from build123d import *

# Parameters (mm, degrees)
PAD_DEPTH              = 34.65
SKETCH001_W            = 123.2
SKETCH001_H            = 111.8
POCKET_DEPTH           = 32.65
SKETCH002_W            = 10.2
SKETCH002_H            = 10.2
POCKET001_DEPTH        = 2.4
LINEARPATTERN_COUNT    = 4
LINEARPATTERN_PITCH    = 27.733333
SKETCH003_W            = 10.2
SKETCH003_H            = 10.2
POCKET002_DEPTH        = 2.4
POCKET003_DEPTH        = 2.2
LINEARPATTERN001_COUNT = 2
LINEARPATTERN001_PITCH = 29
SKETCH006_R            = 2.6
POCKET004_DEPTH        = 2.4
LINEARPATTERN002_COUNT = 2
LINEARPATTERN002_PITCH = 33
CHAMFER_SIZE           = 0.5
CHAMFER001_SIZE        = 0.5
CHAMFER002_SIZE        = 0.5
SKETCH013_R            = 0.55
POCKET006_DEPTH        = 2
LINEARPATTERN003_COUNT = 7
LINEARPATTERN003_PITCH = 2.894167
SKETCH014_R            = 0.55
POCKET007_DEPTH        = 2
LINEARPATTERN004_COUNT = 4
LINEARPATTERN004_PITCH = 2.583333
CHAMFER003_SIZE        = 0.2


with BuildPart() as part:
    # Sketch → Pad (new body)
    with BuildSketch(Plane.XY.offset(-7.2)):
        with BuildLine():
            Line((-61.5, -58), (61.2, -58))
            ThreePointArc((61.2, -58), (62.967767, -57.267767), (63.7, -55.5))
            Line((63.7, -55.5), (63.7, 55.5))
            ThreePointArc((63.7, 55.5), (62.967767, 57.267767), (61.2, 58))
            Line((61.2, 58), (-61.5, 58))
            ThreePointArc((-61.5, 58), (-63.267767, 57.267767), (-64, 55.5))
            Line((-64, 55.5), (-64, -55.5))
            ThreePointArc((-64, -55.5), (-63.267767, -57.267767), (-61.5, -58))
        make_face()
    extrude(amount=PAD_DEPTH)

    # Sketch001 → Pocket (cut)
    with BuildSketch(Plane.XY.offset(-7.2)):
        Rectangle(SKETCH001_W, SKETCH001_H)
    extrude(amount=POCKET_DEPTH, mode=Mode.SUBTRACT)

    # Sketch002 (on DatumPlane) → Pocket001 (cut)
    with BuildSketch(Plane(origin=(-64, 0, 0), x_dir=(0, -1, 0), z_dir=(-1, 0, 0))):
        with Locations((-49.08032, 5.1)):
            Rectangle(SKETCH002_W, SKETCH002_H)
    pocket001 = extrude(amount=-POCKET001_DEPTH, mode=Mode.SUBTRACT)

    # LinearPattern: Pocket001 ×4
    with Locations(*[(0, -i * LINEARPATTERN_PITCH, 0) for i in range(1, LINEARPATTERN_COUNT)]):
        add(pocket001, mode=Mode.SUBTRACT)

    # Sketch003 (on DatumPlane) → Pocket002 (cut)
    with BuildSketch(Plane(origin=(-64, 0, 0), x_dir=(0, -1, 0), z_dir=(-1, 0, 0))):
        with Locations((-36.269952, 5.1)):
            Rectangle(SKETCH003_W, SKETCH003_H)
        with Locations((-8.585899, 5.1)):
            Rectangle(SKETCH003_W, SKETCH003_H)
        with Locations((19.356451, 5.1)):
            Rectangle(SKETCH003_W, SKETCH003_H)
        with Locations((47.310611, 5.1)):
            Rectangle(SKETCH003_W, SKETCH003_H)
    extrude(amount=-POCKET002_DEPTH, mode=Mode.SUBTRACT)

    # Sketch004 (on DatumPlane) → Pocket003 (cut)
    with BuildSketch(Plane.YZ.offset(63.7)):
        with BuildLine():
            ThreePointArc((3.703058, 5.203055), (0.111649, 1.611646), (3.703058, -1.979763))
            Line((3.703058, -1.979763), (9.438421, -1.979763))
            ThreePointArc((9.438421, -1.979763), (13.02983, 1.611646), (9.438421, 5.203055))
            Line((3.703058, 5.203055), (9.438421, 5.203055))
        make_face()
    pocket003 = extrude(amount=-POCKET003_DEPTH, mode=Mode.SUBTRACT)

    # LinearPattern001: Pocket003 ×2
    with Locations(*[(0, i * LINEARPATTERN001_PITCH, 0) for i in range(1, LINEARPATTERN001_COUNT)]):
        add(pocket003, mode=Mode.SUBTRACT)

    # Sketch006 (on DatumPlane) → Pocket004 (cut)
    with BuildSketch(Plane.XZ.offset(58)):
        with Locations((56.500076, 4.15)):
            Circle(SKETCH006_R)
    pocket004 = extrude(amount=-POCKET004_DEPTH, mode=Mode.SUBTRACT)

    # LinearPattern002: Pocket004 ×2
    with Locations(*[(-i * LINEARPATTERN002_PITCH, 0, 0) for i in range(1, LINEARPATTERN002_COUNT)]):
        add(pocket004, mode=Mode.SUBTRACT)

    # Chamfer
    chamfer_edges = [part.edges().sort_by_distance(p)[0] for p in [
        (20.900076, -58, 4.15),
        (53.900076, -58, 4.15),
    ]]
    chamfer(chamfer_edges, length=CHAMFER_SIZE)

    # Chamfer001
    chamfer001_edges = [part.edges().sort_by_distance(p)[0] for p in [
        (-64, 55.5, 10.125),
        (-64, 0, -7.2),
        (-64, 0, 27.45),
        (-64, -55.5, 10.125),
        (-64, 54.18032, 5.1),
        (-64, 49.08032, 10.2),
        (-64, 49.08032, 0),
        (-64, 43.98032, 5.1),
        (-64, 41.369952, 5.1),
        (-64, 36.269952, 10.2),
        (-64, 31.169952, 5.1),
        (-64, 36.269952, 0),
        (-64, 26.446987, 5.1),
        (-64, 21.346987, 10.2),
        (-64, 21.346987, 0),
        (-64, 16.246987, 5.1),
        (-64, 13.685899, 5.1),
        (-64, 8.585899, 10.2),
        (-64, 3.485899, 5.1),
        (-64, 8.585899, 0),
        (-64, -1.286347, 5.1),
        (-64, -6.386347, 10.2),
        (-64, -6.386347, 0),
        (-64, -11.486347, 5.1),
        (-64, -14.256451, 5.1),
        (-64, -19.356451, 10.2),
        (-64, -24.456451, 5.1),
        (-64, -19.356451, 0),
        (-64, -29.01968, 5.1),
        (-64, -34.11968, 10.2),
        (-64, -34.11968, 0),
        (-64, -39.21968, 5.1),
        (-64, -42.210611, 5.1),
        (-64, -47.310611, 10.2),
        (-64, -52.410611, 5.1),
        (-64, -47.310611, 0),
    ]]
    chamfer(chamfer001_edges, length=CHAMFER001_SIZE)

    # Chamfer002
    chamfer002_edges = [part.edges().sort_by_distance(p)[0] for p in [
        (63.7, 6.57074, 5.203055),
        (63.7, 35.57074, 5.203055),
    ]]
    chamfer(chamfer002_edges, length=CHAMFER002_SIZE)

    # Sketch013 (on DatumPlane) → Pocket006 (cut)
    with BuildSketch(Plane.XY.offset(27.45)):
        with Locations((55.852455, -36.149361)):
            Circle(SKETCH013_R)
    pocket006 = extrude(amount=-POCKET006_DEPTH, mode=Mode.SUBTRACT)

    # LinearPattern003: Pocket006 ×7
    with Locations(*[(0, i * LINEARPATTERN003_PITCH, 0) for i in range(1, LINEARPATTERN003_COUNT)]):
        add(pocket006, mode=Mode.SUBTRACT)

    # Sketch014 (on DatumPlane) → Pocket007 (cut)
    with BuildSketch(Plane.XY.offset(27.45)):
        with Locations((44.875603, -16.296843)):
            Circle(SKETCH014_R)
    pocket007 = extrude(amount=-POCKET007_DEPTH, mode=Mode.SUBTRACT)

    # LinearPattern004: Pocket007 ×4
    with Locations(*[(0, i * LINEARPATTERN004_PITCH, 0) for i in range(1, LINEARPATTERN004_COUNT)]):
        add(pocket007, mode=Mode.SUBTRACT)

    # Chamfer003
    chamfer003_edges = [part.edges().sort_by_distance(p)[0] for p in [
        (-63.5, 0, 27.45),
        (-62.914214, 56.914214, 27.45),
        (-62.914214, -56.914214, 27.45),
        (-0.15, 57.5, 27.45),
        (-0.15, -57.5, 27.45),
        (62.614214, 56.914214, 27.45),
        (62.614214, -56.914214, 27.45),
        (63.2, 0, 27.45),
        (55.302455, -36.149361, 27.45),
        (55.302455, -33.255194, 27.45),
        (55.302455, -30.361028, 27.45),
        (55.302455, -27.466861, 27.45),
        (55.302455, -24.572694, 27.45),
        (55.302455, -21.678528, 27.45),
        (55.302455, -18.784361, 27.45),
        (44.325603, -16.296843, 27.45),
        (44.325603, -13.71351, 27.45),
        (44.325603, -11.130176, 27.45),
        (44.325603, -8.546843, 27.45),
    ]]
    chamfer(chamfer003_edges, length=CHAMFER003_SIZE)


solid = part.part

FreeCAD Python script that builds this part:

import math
import FreeCAD as App
import Part
import Sketcher


def edges_at(feature, points):
    """Names of the edges that pass closest to the given points."""
    edges = feature.Shape.Edges
    near = lambda p: min(range(len(edges)), key=lambda i: edges[i].distToShape(Part.Vertex(*p))[0])
    return sorted({f"Edge{near(p) + 1}" for p in points})


def add_polygon(sketch, points):
    """Adds a closed chain of lines whose ends are joined by coincident constraints."""
    first, n = sketch.GeometryCount, len(points)
    for a, b in zip(points, points[1:] + points[:1]):
        sketch.addGeometry(Part.LineSegment(App.Vector(*a, 0), App.Vector(*b, 0)), False)
    for i in range(n):
        sketch.addConstraint(Sketcher.Constraint("Coincident", first + i, 2, first + (i + 1) % n, 1))

doc = App.newDocument("Part")
params = doc.addObject("Spreadsheet::Sheet", "Params")
for row, (alias, value) in enumerate([
    ("sketch1_radius", "2.5 mm"),
    ("sketch1_height", "111 mm"),
    ("sketch1_width", "122.7 mm"),
    ("pad1_length", "34.65 mm"),
    ("sketch2_width", "123.2 mm"),
    ("sketch2_height", "111.8 mm"),
    ("pocket1_length", "32.65 mm"),
    ("sketch3_width", "10.2 mm"),
    ("pocket2_length", "2.4 mm"),
    ("linearpattern_pitch", "27.733333 mm"),
    ("sketch4_width", "10.2 mm"),
    ("pocket3_length", "2.4 mm"),
    ("pocket4_length", "2.2 mm"),
    ("linearpattern2_pitch", "29 mm"),
    ("sketch6_diameter", "5.2 mm"),
    ("pocket5_length", "2.4 mm"),
    ("linearpattern3_pitch", "33 mm"),
    ("chamfer_size", "0.5 mm"),
    ("chamfer2_size", "0.5 mm"),
    ("chamfer3_size", "0.5 mm"),
    ("sketch7_diameter", "1.1 mm"),
    ("pocket6_length", "2 mm"),
    ("linearpattern4_pitch", "2.894167 mm"),
    ("sketch8_diameter", "1.1 mm"),
    ("pocket7_length", "2 mm"),
    ("linearpattern5_pitch", "2.583333 mm"),
    ("chamfer4_size", "0.2 mm"),
], start=1):
    params.set(f"A{row}", alias)
    params.set(f"B{row}", "=" + value)
    params.setAlias(f"B{row}", alias)

body = doc.addObject("PartDesign::Body", "Body")

# Sketch on XY plane
sketch1 = body.newObject("Sketcher::SketchObject", "Sketch")
sketch1.AttachmentSupport = (doc.getObject("XY_Plane"), [""])
sketch1.MapMode = "FlatFace"
sketch1.AttachmentOffset = App.Placement(App.Vector(0, 0, -7.2), App.Rotation())
sketch1.addGeometry([
    Part.LineSegment(App.Vector(-61.5, -58, 0), App.Vector(61.2, -58, 0)),  # 0
    Part.ArcOfCircle(Part.Circle(App.Vector(61.2, -55.5, 0), App.Vector(0, 0, 1), 2.5), math.radians(-90.000004), math.radians(0.000004)),  # 1
    Part.LineSegment(App.Vector(63.7, -55.5, 0), App.Vector(63.7, 55.5, 0)),  # 2
    Part.ArcOfCircle(Part.Circle(App.Vector(61.2, 55.5, 0), App.Vector(0, 0, 1), 2.5), math.radians(-0.000004), math.radians(90.000004)),  # 3
    Part.LineSegment(App.Vector(61.2, 58, 0), App.Vector(-61.5, 58, 0)),  # 4
    Part.ArcOfCircle(Part.Circle(App.Vector(-61.5, 55.5, 0), App.Vector(0, 0, 1), 2.5), math.radians(89.999996), math.radians(180.000004)),  # 5
    Part.LineSegment(App.Vector(-64, 55.5, 0), App.Vector(-64, -55.5, 0)),  # 6
    Part.ArcOfCircle(Part.Circle(App.Vector(-61.5, -55.5, 0), App.Vector(0, 0, 1), 2.5), math.radians(179.999996), math.radians(270.000004)),  # 7
], False)
sketch1.addConstraint([
    Sketcher.Constraint("Tangent", 0, 2, 1, 1),
    Sketcher.Constraint("Tangent", 1, 2, 2, 1),
    Sketcher.Constraint("Tangent", 2, 2, 3, 1),
    Sketcher.Constraint("Tangent", 3, 2, 4, 1),
    Sketcher.Constraint("Tangent", 4, 2, 5, 1),
    Sketcher.Constraint("Tangent", 5, 2, 6, 1),
    Sketcher.Constraint("Tangent", 6, 2, 7, 1),
    Sketcher.Constraint("Tangent", 7, 2, 0, 1),
    Sketcher.Constraint("Horizontal", 0),
    Sketcher.Constraint("Vertical", 2),
    Sketcher.Constraint("Horizontal", 4),
    Sketcher.Constraint("Vertical", 6),
    Sketcher.Constraint("Equal", 1, 3),
    Sketcher.Constraint("Equal", 3, 5),
    Sketcher.Constraint("Equal", 5, 7),
    Sketcher.Constraint("Radius", 1, 2.5),
    Sketcher.Constraint("DistanceY", 2, 1, 2, 2, 111.0),
    Sketcher.Constraint("DistanceX", 0, 1, 0, 2, 122.7),
    Sketcher.Constraint("DistanceY", 0, 2, -1, 1, 58.0),
    Sketcher.Constraint("DistanceX", 5, 2, -1, 1, 64.0),
])
sketch1.setExpression("Constraints[15]", "Params.sketch1_radius")
sketch1.setExpression("Constraints[16]", "Params.sketch1_height")
sketch1.setExpression("Constraints[17]", "Params.sketch1_width")
pad1 = body.newObject("PartDesign::Pad", "Pad")
pad1.Profile = sketch1
pad1.setExpression("Length", "Params.pad1_length")

# Sketch on XY plane
sketch2 = body.newObject("Sketcher::SketchObject", "Sketch001")
sketch2.AttachmentSupport = (doc.getObject("XY_Plane"), [""])
sketch2.MapMode = "FlatFace"
sketch2.AttachmentOffset = App.Placement(App.Vector(0, 0, -7.2), App.Rotation())
add_polygon(sketch2, [(-61.6, 55.9), (-61.6, -55.9), (61.6, -55.9), (61.6, 55.9)])  # lines 0-3
sketch2.addConstraint([
    Sketcher.Constraint("Vertical", 0),
    Sketcher.Constraint("Horizontal", 1),
    Sketcher.Constraint("Vertical", 2),
    Sketcher.Constraint("Horizontal", 3),
    Sketcher.Constraint("Symmetric", 0, 2, 2, 2, -1, 1),
    Sketcher.Constraint("DistanceX", 1, 1, 1, 2, 123.2),
    Sketcher.Constraint("DistanceY", 0, 2, 0, 1, 111.8),
])
sketch2.setExpression("Constraints[9]", "Params.sketch2_width")
sketch2.setExpression("Constraints[10]", "Params.sketch2_height")
pocket1 = body.newObject("PartDesign::Pocket", "Pocket")
pocket1.Profile = sketch2
pocket1.setExpression("Length", "Params.pocket1_length")
pocket1.Reversed = True

# Sketch on YZ plane
sketch3 = body.newObject("Sketcher::SketchObject", "Sketch002")
sketch3.AttachmentSupport = (doc.getObject("YZ_Plane"), [""])
sketch3.MapMode = "FlatFace"
sketch3.AttachmentOffset = App.Placement(App.Vector(0, 0, -64), App.Rotation())
add_polygon(sketch3, [(54.18032, 10.2), (54.18032, 0), (43.98032, 0), (43.98032, 10.2)])  # lines 0-3
sketch3.addConstraint([
    Sketcher.Constraint("Vertical", 0),
    Sketcher.Constraint("Horizontal", 1),
    Sketcher.Constraint("Vertical", 2),
    Sketcher.Constraint("Horizontal", 3),
    Sketcher.Constraint("PointOnObject", 0, 2, -1),
    Sketcher.Constraint("Equal", 3, 0),
    Sketcher.Constraint("DistanceX", 1, 2, 1, 1, 10.2),
    Sketcher.Constraint("DistanceX", -1, 1, 0, 2, 54.18032),
])
sketch3.setExpression("Constraints[10]", "Params.sketch3_width")
pocket2 = body.newObject("PartDesign::Pocket", "Pocket001")
pocket2.Profile = sketch3
pocket2.setExpression("Length", "Params.pocket2_length")
pocket2.Reversed = True
doc.recompute()

linearpattern = body.newObject("PartDesign::LinearPattern", "LinearPattern")
linearpattern.Originals = [pocket2]
linearpattern.Direction = (doc.getObject("Y_Axis"), [""])
linearpattern.Mode = "offset"
linearpattern.setExpression("Offset", "Params.linearpattern_pitch")
linearpattern.Occurrences = 4
linearpattern.Reversed = True
body.Tip = linearpattern

# Sketch on YZ plane
sketch4 = body.newObject("Sketcher::SketchObject", "Sketch003")
sketch4.AttachmentSupport = (doc.getObject("YZ_Plane"), [""])
sketch4.MapMode = "FlatFace"
sketch4.AttachmentOffset = App.Placement(App.Vector(0, 0, -64), App.Rotation())
add_polygon(sketch4, [(41.369952, 10.2), (41.369952, 0), (31.169952, 0), (31.169952, 10.2)])  # lines 0-3
add_polygon(sketch4, [(13.685899, 10.2), (13.685899, 0), (3.485899, 0), (3.485899, 10.2)])  # lines 4-7
add_polygon(sketch4, [(-14.256451, 10.2), (-14.256451, 0), (-24.456451, 0), (-24.456451, 10.2)])  # lines 8-11
add_polygon(sketch4, [(-42.210611, 10.2), (-42.210611, 0), (-52.410611, 0), (-52.410611, 10.2)])  # lines 12-15
sketch4.addConstraint([
    Sketcher.Constraint("Vertical", 0),
    Sketcher.Constraint("Horizontal", 1),
    Sketcher.Constraint("Vertical", 2),
    Sketcher.Constraint("Horizontal", 3),
    Sketcher.Constraint("Vertical", 4),
    Sketcher.Constraint("Horizontal", 5),
    Sketcher.Constraint("Vertical", 6),
    Sketcher.Constraint("Horizontal", 7),
    Sketcher.Constraint("Vertical", 8),
    Sketcher.Constraint("Horizontal", 9),
    Sketcher.Constraint("Vertical", 10),
    Sketcher.Constraint("Horizontal", 11),
    Sketcher.Constraint("Vertical", 12),
    Sketcher.Constraint("Horizontal", 13),
    Sketcher.Constraint("Vertical", 14),
    Sketcher.Constraint("Horizontal", 15),
    Sketcher.Constraint("PointOnObject", 0, 2, -1),
    Sketcher.Constraint("PointOnObject", 4, 2, -1),
    Sketcher.Constraint("PointOnObject", 8, 2, -1),
    Sketcher.Constraint("PointOnObject", 12, 2, -1),
    Sketcher.Constraint("Horizontal", 3, 2, 6, 2),
    Sketcher.Constraint("Horizontal", 7, 2, 10, 2),
    Sketcher.Constraint("Horizontal", 11, 2, 14, 2),
    Sketcher.Constraint("Equal", 3, 5),
    Sketcher.Constraint("Equal", 7, 9),
    Sketcher.Constraint("Equal", 11, 13),
    Sketcher.Constraint("Equal", 15, 0),
    Sketcher.Constraint("DistanceX", 1, 2, 1, 1, 10.2),
    Sketcher.Constraint("DistanceX", -1, 1, 4, 2, 13.685899),
    Sketcher.Constraint("DistanceX", -1, 1, 0, 2, 41.369952),
    Sketcher.Constraint("DistanceX", 8, 2, -1, 1, 14.256451),
    Sketcher.Constraint("DistanceX", 12, 2, -1, 1, 42.210611),
])
sketch4.setExpression("Constraints[43]", "Params.sketch4_width")
pocket3 = body.newObject("PartDesign::Pocket", "Pocket002")
pocket3.Profile = sketch4
pocket3.setExpression("Length", "Params.pocket3_length")
pocket3.Reversed = True

# Sketch on YZ plane
sketch5 = body.newObject("Sketcher::SketchObject", "Sketch004")
sketch5.AttachmentSupport = (doc.getObject("YZ_Plane"), [""])
sketch5.MapMode = "FlatFace"
sketch5.AttachmentOffset = App.Placement(App.Vector(0, 0, 63.7), App.Rotation())
sketch5.addGeometry([
    Part.ArcOfCircle(Part.Circle(App.Vector(3.703058, 1.611646, 0), App.Vector(0, 0, 1), 3.591409), math.radians(90), math.radians(270)),
    Part.LineSegment(App.Vector(3.703058, -1.979763, 0), App.Vector(9.438421, -1.979763, 0)),
    Part.ArcOfCircle(Part.Circle(App.Vector(9.438421, 1.611646, 0), App.Vector(0, 0, 1), 3.591409), math.radians(-90), math.radians(90)),
    Part.LineSegment(App.Vector(9.438421, 5.203055, 0), App.Vector(3.703058, 5.203055, 0)),
], False)
sketch5.addConstraint([
    Sketcher.Constraint("Tangent", 0, 2, 1, 1),
    Sketcher.Constraint("Tangent", 1, 2, 2, 1),
    Sketcher.Constraint("Tangent", 2, 2, 3, 1),
    Sketcher.Constraint("Tangent", 3, 2, 0, 1),
    Sketcher.Constraint("Horizontal", 1),
    Sketcher.Constraint("Horizontal", 3),
    Sketcher.Constraint("Radius", 0, 3.591409),
    Sketcher.Constraint("DistanceX", 1, 1, 1, 2, 5.735363),
    Sketcher.Constraint("DistanceX", -1, 1, 0, 3, 3.703058),
    Sketcher.Constraint("DistanceY", -1, 1, 0, 3, 1.611646),
])
pocket4 = body.newObject("PartDesign::Pocket", "Pocket003")
pocket4.Profile = sketch5
pocket4.setExpression("Length", "Params.pocket4_length")
doc.recompute()

linearpattern2 = body.newObject("PartDesign::LinearPattern", "LinearPattern001")
linearpattern2.Originals = [pocket4]
linearpattern2.Direction = (doc.getObject("Y_Axis"), [""])
linearpattern2.Mode = "offset"
linearpattern2.setExpression("Offset", "Params.linearpattern2_pitch")
linearpattern2.Occurrences = 2
body.Tip = linearpattern2

# Sketch on XZ plane
sketch6 = body.newObject("Sketcher::SketchObject", "Sketch005")
sketch6.AttachmentSupport = (doc.getObject("XZ_Plane"), [""])
sketch6.MapMode = "FlatFace"
sketch6.AttachmentOffset = App.Placement(App.Vector(0, 0, 58), App.Rotation())
sketch6.addGeometry(Part.Circle(App.Vector(56.500076, 4.15, 0), App.Vector(0, 0, 1), 2.6), False)
sketch6.addConstraint([
    Sketcher.Constraint("Diameter", 0, 5.2),
    Sketcher.Constraint("DistanceY", -1, 1, 0, 3, 4.15),
    Sketcher.Constraint("DistanceX", -1, 1, 0, 3, 56.500076),
])
sketch6.setExpression("Constraints[0]", "Params.sketch6_diameter")
pocket5 = body.newObject("PartDesign::Pocket", "Pocket004")
pocket5.Profile = sketch6
pocket5.setExpression("Length", "Params.pocket5_length")
doc.recompute()

linearpattern3 = body.newObject("PartDesign::LinearPattern", "LinearPattern002")
linearpattern3.Originals = [pocket5]
linearpattern3.Direction = (doc.getObject("X_Axis"), [""])
linearpattern3.Mode = "offset"
linearpattern3.setExpression("Offset", "Params.linearpattern3_pitch")
linearpattern3.Occurrences = 2
linearpattern3.Reversed = True
body.Tip = linearpattern3
doc.recompute()

chamfer = body.newObject("PartDesign::Chamfer", "Chamfer")
chamfer.Base = (linearpattern3, edges_at(linearpattern3, [(20.9, -58, 4.15), (53.9, -58, 4.15)]))
chamfer.setExpression("Size", "Params.chamfer_size")
doc.recompute()

chamfer2 = body.newObject("PartDesign::Chamfer", "Chamfer001")
chamfer2.Base = (chamfer, edges_at(chamfer, [
    (-64, 55.5, 10.125),
    (-64, 0, -7.2),
    (-64, 0, 27.45),
    (-64, -55.5, 10.125),
    (-64, 54.18, 5.1),
    (-64, 49.08, 10.2),
    (-64, 49.08, 0),
    (-64, 43.98, 5.1),
    (-64, 41.37, 5.1),
    (-64, 36.27, 10.2),
    (-64, 31.17, 5.1),
    (-64, 36.27, 0),
    (-64, 26.447, 5.1),
    (-64, 21.347, 10.2),
    (-64, 21.347, 0),
    (-64, 16.247, 5.1),
    (-64, 13.686, 5.1),
    (-64, 8.586, 10.2),
    (-64, 3.486, 5.1),
    (-64, 8.586, 0),
    (-64, -1.286, 5.1),
    (-64, -6.386, 10.2),
    (-64, -6.386, 0),
    (-64, -11.486, 5.1),
    (-64, -14.256, 5.1),
    (-64, -19.356, 10.2),
    (-64, -24.456, 5.1),
    (-64, -19.356, 0),
    (-64, -29.02, 5.1),
    (-64, -34.12, 10.2),
    (-64, -34.12, 0),
    (-64, -39.22, 5.1),
    (-64, -42.211, 5.1),
    (-64, -47.311, 10.2),
    (-64, -52.411, 5.1),
    (-64, -47.311, 0),
]))
chamfer2.setExpression("Size", "Params.chamfer2_size")
doc.recompute()

chamfer3 = body.newObject("PartDesign::Chamfer", "Chamfer002")
chamfer3.Base = (chamfer2, edges_at(chamfer2, [(63.7, 6.571, 5.203), (63.7, 35.571, 5.203)]))
chamfer3.setExpression("Size", "Params.chamfer3_size")

# Sketch on XY plane
sketch7 = body.newObject("Sketcher::SketchObject", "Sketch006")
sketch7.AttachmentSupport = (doc.getObject("XY_Plane"), [""])
sketch7.MapMode = "FlatFace"
sketch7.AttachmentOffset = App.Placement(App.Vector(0, 0, 27.45), App.Rotation())
sketch7.addGeometry(Part.Circle(App.Vector(55.852455, -36.149361, 0), App.Vector(0, 0, 1), 0.55), False)
sketch7.addConstraint([
    Sketcher.Constraint("Diameter", 0, 1.1),
    Sketcher.Constraint("DistanceY", 0, 3, -1, 1, 36.149361),
    Sketcher.Constraint("DistanceX", -1, 1, 0, 3, 55.852455),
])
sketch7.setExpression("Constraints[0]", "Params.sketch7_diameter")
pocket6 = body.newObject("PartDesign::Pocket", "Pocket005")
pocket6.Profile = sketch7
pocket6.setExpression("Length", "Params.pocket6_length")
doc.recompute()

linearpattern4 = body.newObject("PartDesign::LinearPattern", "LinearPattern003")
linearpattern4.Originals = [pocket6]
linearpattern4.Direction = (doc.getObject("Y_Axis"), [""])
linearpattern4.Mode = "offset"
linearpattern4.setExpression("Offset", "Params.linearpattern4_pitch")
linearpattern4.Occurrences = 7
body.Tip = linearpattern4

# Sketch on XY plane
sketch8 = body.newObject("Sketcher::SketchObject", "Sketch007")
sketch8.AttachmentSupport = (doc.getObject("XY_Plane"), [""])
sketch8.MapMode = "FlatFace"
sketch8.AttachmentOffset = App.Placement(App.Vector(0, 0, 27.45), App.Rotation())
sketch8.addGeometry(Part.Circle(App.Vector(44.875603, -16.296843, 0), App.Vector(0, 0, 1), 0.55), False)
sketch8.addConstraint([
    Sketcher.Constraint("Diameter", 0, 1.1),
    Sketcher.Constraint("DistanceX", -1, 1, 0, 3, 44.875603),
    Sketcher.Constraint("DistanceY", 0, 3, -1, 1, 16.296843),
])
sketch8.setExpression("Constraints[0]", "Params.sketch8_diameter")
pocket7 = body.newObject("PartDesign::Pocket", "Pocket006")
pocket7.Profile = sketch8
pocket7.setExpression("Length", "Params.pocket7_length")
doc.recompute()

linearpattern5 = body.newObject("PartDesign::LinearPattern", "LinearPattern004")
linearpattern5.Originals = [pocket7]
linearpattern5.Direction = (doc.getObject("Y_Axis"), [""])
linearpattern5.Mode = "offset"
linearpattern5.setExpression("Offset", "Params.linearpattern5_pitch")
linearpattern5.Occurrences = 4
body.Tip = linearpattern5
doc.recompute()

chamfer4 = body.newObject("PartDesign::Chamfer", "Chamfer003")
chamfer4.Base = (linearpattern5, edges_at(linearpattern5, [
    (-63.5, 0, 27.45),
    (-62.914, 56.914, 27.45),
    (-62.914, -56.914, 27.45),
    (-0.15, 57.5, 27.45),
    (-0.15, -57.5, 27.45),
    (62.614, 56.914, 27.45),
    (62.614, -56.914, 27.45),
    (63.2, 0, 27.45),
    (55.302, -36.149, 27.45),
    (55.302, -33.255, 27.45),
    (55.302, -30.361, 27.45),
    (55.302, -27.467, 27.45),
    (55.302, -24.573, 27.45),
    (55.302, -21.679, 27.45),
    (55.302, -18.784, 27.45),
    (44.326, -16.297, 27.45),
    (44.326, -13.714, 27.45),
    (44.326, -11.13, 27.45),
    (44.326, -8.547, 27.45),
]))
chamfer4.setExpression("Size", "Params.chamfer4_size")

doc.recompute()
